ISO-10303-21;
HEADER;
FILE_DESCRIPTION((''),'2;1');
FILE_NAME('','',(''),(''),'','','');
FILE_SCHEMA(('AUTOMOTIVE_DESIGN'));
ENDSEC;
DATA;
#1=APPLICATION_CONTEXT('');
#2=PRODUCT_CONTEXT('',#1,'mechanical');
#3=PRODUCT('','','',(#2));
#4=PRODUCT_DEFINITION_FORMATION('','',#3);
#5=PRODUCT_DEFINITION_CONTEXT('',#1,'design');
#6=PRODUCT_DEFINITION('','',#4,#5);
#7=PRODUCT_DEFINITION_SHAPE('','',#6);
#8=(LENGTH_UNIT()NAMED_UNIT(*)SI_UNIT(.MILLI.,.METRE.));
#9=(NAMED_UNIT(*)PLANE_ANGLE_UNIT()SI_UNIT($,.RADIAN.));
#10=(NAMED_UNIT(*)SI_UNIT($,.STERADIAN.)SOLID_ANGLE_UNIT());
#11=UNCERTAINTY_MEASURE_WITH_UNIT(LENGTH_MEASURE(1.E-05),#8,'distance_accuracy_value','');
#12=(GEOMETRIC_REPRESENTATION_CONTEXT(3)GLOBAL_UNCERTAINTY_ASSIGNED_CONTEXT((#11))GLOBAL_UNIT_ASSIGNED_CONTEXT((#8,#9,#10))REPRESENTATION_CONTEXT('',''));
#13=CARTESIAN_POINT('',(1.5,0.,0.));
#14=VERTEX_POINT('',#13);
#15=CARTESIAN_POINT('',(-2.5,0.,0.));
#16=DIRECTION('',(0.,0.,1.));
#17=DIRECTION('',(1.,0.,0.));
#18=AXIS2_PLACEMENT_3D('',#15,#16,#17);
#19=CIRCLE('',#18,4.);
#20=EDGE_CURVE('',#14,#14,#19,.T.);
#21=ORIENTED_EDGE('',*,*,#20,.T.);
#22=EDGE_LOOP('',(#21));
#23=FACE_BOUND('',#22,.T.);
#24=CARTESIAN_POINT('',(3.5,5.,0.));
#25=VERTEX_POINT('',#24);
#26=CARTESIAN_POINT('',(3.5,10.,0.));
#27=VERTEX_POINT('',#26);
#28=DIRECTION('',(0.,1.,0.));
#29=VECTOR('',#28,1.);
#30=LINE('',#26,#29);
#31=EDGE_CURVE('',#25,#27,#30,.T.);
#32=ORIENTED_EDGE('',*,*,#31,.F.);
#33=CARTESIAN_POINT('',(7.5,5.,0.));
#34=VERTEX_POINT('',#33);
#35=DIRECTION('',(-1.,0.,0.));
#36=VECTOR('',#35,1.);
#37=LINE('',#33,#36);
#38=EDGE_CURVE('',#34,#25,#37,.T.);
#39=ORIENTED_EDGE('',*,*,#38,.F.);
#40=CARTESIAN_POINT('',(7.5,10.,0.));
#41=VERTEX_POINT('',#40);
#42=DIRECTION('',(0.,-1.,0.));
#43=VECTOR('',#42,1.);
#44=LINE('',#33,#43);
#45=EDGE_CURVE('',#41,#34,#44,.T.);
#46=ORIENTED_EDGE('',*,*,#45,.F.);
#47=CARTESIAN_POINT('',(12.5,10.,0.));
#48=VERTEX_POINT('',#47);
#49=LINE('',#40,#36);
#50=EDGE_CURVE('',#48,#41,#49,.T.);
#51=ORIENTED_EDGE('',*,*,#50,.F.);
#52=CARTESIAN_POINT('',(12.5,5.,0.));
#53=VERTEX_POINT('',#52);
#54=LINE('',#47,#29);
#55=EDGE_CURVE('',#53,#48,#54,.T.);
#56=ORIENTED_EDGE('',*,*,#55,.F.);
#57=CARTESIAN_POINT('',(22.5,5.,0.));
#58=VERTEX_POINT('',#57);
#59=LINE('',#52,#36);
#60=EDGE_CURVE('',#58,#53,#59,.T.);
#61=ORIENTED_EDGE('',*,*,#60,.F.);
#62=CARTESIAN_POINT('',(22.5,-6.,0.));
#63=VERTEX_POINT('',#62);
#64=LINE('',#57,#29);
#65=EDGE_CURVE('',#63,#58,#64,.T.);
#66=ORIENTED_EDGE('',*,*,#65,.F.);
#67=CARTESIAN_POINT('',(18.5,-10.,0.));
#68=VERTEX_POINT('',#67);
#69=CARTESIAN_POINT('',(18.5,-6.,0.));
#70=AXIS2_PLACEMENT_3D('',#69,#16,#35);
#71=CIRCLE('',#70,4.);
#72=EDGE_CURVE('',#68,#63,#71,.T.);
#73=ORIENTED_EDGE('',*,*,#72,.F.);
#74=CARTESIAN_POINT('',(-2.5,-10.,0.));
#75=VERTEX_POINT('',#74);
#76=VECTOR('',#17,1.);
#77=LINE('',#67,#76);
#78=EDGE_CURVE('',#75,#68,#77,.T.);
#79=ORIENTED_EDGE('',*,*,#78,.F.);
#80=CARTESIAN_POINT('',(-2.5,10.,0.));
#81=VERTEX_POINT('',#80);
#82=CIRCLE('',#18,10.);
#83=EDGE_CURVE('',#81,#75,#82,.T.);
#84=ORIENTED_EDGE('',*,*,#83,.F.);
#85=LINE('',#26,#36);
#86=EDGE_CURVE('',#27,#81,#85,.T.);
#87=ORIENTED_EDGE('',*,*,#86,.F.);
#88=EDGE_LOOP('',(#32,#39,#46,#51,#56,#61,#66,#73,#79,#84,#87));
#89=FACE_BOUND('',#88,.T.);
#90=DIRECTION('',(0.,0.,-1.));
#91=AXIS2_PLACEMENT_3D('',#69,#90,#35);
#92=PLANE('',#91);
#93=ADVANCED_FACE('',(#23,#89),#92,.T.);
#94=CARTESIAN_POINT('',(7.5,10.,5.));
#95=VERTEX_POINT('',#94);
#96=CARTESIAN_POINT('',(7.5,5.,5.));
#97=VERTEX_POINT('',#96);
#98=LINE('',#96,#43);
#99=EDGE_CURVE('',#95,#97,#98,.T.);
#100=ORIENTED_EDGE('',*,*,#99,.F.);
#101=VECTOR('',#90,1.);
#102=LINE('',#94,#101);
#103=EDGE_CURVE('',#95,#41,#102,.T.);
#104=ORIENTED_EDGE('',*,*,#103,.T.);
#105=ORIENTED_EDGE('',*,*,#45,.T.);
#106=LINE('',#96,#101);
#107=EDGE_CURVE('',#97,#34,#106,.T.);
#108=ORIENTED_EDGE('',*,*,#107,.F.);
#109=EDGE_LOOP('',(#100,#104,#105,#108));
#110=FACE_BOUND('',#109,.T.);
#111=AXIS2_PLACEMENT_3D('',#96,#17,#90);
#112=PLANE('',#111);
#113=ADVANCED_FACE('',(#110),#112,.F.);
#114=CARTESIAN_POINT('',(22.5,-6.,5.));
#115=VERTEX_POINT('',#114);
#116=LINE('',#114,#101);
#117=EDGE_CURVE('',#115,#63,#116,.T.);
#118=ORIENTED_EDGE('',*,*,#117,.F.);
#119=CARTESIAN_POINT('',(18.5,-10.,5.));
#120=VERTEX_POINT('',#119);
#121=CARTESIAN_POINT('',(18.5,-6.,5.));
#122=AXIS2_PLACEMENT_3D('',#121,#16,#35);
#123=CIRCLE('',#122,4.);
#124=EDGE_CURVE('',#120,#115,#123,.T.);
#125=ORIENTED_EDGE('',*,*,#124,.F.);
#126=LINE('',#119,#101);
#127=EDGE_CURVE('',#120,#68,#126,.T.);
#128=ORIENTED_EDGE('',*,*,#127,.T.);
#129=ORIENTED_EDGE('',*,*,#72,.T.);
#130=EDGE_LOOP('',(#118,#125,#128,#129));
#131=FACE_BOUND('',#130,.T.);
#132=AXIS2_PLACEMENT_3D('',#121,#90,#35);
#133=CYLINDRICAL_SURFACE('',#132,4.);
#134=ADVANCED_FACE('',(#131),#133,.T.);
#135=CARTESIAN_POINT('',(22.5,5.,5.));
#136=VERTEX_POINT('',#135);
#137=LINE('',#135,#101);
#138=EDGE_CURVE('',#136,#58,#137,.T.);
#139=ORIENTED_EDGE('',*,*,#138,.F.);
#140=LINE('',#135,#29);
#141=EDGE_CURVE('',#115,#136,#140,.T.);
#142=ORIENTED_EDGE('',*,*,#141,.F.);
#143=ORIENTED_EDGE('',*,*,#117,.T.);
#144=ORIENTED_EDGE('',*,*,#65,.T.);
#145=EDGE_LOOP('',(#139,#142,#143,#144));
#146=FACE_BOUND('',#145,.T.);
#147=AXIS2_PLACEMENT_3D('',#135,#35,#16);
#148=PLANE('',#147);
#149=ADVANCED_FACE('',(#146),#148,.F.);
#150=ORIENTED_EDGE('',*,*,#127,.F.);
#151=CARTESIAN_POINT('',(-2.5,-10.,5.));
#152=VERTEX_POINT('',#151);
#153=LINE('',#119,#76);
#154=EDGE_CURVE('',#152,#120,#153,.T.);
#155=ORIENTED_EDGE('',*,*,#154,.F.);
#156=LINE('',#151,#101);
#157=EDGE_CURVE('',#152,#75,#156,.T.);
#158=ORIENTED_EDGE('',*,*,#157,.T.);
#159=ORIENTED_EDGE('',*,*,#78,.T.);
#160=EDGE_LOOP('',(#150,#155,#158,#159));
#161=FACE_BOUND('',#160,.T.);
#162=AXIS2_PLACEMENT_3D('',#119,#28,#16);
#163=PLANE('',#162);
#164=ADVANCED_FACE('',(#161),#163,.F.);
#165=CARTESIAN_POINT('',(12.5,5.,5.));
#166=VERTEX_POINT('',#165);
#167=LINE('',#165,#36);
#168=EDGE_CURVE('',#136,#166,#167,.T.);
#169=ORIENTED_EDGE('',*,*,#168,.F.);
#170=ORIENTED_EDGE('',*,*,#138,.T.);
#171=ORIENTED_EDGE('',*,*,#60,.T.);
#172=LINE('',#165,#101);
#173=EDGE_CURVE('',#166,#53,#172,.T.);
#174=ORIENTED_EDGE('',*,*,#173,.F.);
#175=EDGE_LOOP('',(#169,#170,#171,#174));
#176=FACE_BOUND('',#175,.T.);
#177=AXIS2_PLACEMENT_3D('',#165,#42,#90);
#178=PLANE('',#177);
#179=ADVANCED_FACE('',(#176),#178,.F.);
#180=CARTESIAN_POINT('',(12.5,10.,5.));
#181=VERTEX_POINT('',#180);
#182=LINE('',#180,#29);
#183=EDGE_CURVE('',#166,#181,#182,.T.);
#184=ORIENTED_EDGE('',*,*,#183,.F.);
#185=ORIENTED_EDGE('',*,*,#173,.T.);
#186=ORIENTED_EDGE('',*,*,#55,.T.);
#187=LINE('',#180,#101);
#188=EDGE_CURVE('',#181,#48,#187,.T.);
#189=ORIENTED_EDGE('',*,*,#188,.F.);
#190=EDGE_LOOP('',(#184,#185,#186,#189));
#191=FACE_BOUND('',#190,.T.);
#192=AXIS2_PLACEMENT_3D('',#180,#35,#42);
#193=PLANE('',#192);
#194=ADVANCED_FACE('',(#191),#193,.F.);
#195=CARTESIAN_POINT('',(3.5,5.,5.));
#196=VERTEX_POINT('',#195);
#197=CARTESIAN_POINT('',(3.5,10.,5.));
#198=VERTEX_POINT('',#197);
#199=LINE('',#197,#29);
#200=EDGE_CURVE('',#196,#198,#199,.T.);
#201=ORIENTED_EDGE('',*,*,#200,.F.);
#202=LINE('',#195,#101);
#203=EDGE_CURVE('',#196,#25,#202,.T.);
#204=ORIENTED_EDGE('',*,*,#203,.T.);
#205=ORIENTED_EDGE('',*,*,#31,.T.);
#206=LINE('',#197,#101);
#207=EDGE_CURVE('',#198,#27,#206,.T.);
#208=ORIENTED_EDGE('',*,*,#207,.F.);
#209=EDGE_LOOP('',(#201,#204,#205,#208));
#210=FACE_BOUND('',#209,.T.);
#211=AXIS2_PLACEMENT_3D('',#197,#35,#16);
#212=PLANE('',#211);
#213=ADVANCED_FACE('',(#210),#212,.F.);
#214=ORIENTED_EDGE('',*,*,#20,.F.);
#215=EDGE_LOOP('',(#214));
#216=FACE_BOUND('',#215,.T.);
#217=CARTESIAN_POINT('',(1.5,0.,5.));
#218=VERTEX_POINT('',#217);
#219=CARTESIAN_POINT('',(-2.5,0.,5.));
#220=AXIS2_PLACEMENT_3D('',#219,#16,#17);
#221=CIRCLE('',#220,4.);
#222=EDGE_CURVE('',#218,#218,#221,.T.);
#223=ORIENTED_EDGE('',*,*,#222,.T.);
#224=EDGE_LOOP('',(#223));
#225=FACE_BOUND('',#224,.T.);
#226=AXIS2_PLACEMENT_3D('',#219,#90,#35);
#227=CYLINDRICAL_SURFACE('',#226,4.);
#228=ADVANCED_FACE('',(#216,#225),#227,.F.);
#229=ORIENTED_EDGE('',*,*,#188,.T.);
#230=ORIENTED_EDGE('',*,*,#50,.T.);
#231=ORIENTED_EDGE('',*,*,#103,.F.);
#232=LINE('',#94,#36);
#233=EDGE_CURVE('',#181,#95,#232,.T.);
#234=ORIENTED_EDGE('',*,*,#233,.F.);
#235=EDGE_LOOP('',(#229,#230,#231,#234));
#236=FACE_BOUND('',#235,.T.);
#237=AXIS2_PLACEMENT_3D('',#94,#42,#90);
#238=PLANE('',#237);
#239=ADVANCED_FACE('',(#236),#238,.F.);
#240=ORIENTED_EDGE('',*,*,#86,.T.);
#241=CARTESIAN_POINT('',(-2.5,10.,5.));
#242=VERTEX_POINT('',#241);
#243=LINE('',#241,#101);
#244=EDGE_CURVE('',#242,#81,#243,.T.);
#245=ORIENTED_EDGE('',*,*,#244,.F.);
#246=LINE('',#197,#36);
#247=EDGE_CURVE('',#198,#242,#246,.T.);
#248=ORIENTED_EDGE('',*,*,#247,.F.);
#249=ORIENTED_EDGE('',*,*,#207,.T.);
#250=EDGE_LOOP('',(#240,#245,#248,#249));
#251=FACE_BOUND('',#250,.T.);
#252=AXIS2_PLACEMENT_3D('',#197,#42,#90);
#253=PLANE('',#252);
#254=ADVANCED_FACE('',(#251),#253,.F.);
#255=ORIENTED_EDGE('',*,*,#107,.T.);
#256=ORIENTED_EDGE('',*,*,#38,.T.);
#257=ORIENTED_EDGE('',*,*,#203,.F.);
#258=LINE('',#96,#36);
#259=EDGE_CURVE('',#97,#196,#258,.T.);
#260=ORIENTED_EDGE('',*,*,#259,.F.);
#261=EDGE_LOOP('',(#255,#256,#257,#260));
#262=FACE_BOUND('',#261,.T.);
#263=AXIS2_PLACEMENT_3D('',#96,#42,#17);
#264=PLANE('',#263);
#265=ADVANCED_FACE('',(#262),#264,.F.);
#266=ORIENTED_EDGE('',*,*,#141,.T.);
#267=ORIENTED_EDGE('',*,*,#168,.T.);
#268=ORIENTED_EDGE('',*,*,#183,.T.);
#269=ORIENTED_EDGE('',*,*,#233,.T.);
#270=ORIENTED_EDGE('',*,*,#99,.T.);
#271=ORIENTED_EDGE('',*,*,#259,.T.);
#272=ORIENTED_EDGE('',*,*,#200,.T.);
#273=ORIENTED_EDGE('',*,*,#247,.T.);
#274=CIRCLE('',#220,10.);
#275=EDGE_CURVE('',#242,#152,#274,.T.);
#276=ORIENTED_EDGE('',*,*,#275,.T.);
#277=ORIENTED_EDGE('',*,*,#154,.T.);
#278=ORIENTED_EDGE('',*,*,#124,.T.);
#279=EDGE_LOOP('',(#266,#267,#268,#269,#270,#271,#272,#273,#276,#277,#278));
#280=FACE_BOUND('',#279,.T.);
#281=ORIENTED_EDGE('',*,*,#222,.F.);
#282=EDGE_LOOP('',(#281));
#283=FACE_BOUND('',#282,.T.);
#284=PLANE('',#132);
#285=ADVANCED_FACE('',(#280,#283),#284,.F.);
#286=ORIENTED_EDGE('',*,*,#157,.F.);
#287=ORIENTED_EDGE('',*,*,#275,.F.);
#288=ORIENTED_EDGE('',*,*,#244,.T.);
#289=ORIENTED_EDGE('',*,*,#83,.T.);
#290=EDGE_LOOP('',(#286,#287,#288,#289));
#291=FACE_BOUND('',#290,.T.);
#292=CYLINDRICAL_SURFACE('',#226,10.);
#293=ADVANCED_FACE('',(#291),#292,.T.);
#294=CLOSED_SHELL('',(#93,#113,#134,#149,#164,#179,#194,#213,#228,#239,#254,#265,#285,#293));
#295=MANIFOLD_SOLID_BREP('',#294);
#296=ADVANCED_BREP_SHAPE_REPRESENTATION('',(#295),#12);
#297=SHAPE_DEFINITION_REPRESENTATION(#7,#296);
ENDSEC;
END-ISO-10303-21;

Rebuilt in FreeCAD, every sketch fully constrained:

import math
import FreeCAD as App
import Part
import Sketcher
from FreeCAD import Vector

doc = App.newDocument("Part")
body = doc.addObject("PartDesign::Body", "Body")

# Sketch on XY plane
sketch1 = body.newObject("Sketcher::SketchObject", "Sketch")
sketch1.AttachmentSupport = (doc.getObject("XY_Plane"), [""])
sketch1.MapMode = "FlatFace"
sketch1.addGeometry([
    Part.LineSegment(Vector(22.5, -6, 0), Vector(22.5, 5, 0)),  # 0
    Part.LineSegment(Vector(22.5, 5, 0), Vector(12.5, 5, 0)),  # 1
    Part.LineSegment(Vector(12.5, 5, 0), Vector(12.5, 10, 0)),  # 2
    Part.LineSegment(Vector(12.5, 10, 0), Vector(7.5, 10, 0)),  # 3
    Part.LineSegment(Vector(7.5, 10, 0), Vector(7.5, 5, 0)),  # 4
    Part.LineSegment(Vector(7.5, 5, 0), Vector(3.5, 5, 0)),  # 5
    Part.LineSegment(Vector(3.5, 5, 0), Vector(3.5, 10, 0)),  # 6
    Part.LineSegment(Vector(3.5, 10, 0), Vector(-2.5, 10, 0)),  # 7
    Part.ArcOfCircle(Part.Circle(Vector(-2.5, 0, 0), Vector(0, 0, 1), 10), math.radians(90), math.radians(270)),  # 8
    Part.LineSegment(Vector(-2.5, -10, 0), Vector(18.5, -10, 0)),  # 9
    Part.ArcOfCircle(Part.Circle(Vector(18.5, -6, 0), Vector(0, 0, 1), 4), math.radians(-90), math.radians(0)),  # 10
    Part.Circle(Vector(-2.5, 0, 0), Vector(0, 0, 1), 4),  # 11
], False)
sketch1.addConstraint([
    Sketcher.Constraint("Coincident", 0, 2, 1, 1),
    Sketcher.Constraint("Coincident", 1, 2, 2, 1),
    Sketcher.Constraint("Coincident", 2, 2, 3, 1),
    Sketcher.Constraint("Coincident", 3, 2, 4, 1),
    Sketcher.Constraint("Coincident", 4, 2, 5, 1),
    Sketcher.Constraint("Coincident", 5, 2, 6, 1),
    Sketcher.Constraint("Coincident", 6, 2, 7, 1),
    Sketcher.Constraint("Tangent", 7, 2, 8, 1),
    Sketcher.Constraint("Tangent", 8, 2, 9, 1),
    Sketcher.Constraint("Tangent", 9, 2, 10, 1),
    Sketcher.Constraint("Tangent", 10, 2, 0, 1),
    Sketcher.Constraint("Vertical", 0),
    Sketcher.Constraint("Horizontal", 1),
    Sketcher.Constraint("Vertical", 2),
    Sketcher.Constraint("Horizontal", 3),
    Sketcher.Constraint("Vertical", 4),
    Sketcher.Constraint("Horizontal", 5),
    Sketcher.Constraint("Vertical", 6),
    Sketcher.Constraint("Horizontal", 7),
    Sketcher.Constraint("Horizontal", 9),
    Sketcher.Constraint("Coincident", 11, 3, 8, 3),
    Sketcher.Constraint("Equal", 10, 11),
    Sketcher.Constraint("PointOnObject", 8, 3, -1),
    Sketcher.Constraint("Horizontal", 1, 2, 4, 2),
    Sketcher.Constraint("Horizontal", 3, 2, 6, 2),
    Sketcher.Constraint("Equal", 3, 2),
    Sketcher.Constraint("Diameter", 11, 8.0),
    Sketcher.Constraint("Radius", 8, 10.0),
    Sketcher.Constraint("DistanceX", 1, 2, 1, 1, 10.0),
    Sketcher.Constraint("DistanceX", 3, 2, 3, 1, 5.0),
    Sketcher.Constraint("DistanceX", 5, 2, 5, 1, 4.0),
    Sketcher.Constraint("DistanceX", 7, 2, 7, 1, 6.0),
    Sketcher.Constraint("DistanceX", 8, 3, -1, 1, 2.5),
])
pad1 = body.newObject("PartDesign::Pad", "Pad")
pad1.Profile = sketch1
pad1.Length = 5

doc.recompute()
